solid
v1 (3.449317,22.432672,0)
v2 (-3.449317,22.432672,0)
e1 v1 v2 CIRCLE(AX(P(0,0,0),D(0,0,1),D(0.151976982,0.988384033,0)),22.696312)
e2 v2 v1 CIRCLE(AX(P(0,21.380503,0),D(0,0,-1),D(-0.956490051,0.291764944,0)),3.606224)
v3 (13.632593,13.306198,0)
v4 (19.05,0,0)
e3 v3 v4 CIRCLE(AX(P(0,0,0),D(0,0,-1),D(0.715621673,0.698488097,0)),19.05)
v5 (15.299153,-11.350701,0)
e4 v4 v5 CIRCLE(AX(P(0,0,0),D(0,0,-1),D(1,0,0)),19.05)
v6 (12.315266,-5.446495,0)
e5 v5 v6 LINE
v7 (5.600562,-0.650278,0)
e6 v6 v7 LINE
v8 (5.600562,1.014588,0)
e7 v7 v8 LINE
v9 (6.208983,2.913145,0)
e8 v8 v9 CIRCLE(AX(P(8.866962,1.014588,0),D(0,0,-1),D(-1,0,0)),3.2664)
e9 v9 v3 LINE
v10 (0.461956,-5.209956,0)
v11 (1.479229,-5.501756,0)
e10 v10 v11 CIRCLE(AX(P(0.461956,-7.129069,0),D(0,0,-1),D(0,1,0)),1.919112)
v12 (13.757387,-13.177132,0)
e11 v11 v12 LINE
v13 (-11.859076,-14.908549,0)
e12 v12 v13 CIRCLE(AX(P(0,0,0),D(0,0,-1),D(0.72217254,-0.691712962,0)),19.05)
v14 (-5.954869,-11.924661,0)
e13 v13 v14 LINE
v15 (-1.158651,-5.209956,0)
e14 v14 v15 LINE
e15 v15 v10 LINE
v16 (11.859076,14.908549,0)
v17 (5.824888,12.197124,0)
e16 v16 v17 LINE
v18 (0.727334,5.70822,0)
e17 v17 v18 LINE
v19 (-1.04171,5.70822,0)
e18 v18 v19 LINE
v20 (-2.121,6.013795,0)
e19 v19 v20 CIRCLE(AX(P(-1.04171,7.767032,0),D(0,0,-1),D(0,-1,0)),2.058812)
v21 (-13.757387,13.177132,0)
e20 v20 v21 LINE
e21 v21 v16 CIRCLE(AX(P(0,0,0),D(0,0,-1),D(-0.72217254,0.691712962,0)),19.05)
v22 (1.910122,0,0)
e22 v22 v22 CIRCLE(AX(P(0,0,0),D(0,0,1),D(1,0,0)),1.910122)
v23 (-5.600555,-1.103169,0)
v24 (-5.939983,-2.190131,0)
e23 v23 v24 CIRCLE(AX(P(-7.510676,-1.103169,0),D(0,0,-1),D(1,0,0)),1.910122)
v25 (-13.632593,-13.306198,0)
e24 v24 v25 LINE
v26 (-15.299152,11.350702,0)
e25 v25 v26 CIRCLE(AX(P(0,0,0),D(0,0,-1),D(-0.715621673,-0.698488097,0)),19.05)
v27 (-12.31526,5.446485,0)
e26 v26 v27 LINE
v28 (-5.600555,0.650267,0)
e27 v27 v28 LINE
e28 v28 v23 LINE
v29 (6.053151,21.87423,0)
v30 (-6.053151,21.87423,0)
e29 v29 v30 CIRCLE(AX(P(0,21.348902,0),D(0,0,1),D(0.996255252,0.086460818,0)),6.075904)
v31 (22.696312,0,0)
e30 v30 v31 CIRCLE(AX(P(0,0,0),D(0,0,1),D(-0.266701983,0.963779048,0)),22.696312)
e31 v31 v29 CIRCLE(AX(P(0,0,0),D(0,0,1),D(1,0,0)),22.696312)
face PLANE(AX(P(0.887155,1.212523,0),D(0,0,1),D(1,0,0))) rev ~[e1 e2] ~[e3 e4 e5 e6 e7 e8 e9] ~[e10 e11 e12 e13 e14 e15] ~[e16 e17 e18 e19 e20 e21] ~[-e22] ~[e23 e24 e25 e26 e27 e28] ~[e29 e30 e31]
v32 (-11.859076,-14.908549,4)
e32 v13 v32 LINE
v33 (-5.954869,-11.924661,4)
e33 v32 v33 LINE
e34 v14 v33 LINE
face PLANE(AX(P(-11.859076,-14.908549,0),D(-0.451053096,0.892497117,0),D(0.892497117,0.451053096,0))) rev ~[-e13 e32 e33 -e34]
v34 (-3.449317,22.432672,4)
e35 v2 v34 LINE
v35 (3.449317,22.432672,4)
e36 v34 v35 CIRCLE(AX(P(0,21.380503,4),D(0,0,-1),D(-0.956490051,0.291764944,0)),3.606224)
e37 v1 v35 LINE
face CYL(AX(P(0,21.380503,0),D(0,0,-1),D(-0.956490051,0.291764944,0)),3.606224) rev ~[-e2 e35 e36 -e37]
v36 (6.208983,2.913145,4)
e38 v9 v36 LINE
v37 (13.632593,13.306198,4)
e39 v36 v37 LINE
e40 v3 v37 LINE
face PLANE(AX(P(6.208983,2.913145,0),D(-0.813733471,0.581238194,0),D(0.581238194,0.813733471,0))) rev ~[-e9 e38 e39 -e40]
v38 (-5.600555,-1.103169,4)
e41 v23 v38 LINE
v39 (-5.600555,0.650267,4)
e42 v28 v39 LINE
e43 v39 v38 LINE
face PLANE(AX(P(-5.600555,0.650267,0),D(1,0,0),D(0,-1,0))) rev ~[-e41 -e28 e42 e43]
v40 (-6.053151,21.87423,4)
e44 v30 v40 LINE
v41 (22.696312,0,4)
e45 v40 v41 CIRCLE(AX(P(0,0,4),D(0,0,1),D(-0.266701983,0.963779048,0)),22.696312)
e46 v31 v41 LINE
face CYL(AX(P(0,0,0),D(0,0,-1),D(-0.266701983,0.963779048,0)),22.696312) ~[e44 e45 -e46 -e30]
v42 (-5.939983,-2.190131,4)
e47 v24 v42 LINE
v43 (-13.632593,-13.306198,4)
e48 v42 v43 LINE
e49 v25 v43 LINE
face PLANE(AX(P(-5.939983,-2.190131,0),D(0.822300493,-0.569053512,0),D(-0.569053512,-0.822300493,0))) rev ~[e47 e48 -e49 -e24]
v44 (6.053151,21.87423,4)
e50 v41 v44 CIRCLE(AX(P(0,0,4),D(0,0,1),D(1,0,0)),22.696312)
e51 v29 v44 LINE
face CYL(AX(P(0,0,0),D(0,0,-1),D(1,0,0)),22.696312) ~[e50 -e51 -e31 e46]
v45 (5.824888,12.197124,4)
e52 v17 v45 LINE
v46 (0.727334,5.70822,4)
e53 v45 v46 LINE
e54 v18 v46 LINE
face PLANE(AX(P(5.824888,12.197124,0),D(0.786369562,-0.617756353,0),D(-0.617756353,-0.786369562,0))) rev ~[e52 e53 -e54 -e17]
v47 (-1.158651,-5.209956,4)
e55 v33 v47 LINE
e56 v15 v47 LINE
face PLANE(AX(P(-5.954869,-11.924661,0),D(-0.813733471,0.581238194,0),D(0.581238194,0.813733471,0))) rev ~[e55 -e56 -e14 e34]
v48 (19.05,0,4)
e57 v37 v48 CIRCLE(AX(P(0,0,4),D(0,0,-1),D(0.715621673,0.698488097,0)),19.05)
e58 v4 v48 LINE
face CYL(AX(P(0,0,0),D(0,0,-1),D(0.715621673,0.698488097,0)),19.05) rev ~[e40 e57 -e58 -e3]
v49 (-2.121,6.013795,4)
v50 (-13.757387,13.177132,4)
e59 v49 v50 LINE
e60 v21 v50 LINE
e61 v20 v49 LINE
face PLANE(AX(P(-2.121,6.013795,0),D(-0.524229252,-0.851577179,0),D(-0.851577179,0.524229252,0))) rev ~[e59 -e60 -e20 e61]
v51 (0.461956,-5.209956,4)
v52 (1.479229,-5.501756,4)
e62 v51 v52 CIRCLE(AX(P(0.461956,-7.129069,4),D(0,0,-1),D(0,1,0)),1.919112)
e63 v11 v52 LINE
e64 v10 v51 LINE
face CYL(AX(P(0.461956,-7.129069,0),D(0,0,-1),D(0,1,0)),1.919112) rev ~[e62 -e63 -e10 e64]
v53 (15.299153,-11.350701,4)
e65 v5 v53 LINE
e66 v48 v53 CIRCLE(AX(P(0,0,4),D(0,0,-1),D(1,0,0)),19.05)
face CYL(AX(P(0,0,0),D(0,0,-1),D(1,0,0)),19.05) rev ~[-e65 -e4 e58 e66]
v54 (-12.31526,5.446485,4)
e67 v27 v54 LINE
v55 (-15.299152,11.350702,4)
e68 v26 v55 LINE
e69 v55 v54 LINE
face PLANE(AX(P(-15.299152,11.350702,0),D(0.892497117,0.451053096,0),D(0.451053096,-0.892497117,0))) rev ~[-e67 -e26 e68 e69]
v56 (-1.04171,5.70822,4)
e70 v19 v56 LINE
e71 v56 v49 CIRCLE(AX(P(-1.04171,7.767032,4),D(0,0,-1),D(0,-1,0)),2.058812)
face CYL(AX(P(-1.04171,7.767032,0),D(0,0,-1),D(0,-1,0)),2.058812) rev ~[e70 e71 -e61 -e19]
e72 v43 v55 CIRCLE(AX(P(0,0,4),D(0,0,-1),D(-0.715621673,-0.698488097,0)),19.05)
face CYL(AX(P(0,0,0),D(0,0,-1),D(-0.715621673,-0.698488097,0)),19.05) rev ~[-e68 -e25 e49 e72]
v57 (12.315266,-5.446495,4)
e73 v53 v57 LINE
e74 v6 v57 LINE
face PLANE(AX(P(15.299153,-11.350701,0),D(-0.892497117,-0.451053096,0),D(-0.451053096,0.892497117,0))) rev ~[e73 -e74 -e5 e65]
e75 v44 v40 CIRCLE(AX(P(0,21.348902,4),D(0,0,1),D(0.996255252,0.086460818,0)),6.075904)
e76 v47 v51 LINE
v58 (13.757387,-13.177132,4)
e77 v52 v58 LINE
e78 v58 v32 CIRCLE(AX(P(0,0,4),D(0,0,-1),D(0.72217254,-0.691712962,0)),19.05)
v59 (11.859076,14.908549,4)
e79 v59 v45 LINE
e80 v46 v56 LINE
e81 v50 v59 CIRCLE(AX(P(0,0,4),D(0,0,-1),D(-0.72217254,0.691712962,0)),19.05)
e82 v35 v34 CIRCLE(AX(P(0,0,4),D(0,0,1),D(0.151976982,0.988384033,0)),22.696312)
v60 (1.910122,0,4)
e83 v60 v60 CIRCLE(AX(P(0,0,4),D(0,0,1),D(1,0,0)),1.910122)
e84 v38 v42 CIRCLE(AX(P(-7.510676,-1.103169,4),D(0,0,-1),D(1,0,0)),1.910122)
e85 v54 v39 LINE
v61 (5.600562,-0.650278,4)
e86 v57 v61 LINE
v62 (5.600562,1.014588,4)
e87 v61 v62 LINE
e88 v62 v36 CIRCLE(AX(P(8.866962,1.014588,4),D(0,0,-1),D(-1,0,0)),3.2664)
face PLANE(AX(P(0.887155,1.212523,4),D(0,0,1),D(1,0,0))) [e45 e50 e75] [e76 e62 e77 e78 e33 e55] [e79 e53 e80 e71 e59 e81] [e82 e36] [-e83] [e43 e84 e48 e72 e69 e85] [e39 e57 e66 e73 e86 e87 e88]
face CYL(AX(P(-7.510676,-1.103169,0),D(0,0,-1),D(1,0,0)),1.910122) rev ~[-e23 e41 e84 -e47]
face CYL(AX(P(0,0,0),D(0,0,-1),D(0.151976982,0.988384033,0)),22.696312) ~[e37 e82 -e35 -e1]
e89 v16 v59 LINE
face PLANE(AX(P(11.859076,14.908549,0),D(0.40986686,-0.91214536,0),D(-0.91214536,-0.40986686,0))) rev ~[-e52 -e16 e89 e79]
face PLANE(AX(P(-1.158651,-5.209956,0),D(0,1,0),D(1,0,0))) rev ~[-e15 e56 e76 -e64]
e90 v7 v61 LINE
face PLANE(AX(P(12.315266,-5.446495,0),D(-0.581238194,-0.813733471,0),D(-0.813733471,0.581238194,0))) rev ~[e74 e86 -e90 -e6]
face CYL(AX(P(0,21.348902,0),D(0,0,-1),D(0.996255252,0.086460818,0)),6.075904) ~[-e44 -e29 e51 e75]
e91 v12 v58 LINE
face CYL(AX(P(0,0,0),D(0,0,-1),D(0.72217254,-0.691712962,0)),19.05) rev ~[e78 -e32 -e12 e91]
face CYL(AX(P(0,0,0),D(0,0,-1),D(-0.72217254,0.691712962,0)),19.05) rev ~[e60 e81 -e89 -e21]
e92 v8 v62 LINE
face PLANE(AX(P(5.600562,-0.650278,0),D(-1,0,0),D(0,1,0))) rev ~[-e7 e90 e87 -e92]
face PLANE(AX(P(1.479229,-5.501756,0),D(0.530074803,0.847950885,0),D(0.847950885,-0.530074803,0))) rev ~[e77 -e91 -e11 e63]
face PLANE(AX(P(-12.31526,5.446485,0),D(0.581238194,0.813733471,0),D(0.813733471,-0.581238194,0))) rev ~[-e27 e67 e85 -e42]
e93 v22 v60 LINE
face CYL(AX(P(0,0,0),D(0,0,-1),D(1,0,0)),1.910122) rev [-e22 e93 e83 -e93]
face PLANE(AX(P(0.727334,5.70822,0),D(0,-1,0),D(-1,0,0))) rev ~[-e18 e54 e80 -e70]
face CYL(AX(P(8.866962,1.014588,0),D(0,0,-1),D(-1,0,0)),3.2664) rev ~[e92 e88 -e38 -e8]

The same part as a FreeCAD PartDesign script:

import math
import FreeCAD as App
import Part
import Sketcher
from FreeCAD import Vector

doc = App.newDocument("Part")
body = doc.addObject("PartDesign::Body", "Body")

# Sketch on XY plane
sketch1 = body.newObject("Sketcher::SketchObject", "Sketch")
sketch1.AttachmentSupport = (doc.getObject("XY_Plane"), [""])
sketch1.MapMode = "FlatFace"
sketch1.addGeometry(Part.ArcOfCircle(Part.Circle(Vector(0, 0, 0), Vector(0, 0, 1), 22.7), math.radians(105), math.radians(360)), False)
sketch1.addGeometry(Part.ArcOfCircle(Part.Circle(Vector(0, 0, 0), Vector(0, 0, 1), 22.7), math.radians(0), math.radians(75)), False)
sketch1.addGeometry(Part.ArcOfCircle(Part.Circle(Vector(0, 21.3, 0), Vector(0, 0, 1), 6.1), math.radians(5), math.radians(175)), False)
sketch1.addGeometry(Part.ArcOfCircle(Part.Circle(Vector(0, 0, 0), Vector(0, 0, 1), 22.7), math.radians(81.26), math.radians(98.74)), False)
sketch1.addGeometry(Part.ArcOfCircle(Part.Circle(Vector(0, 21.4, 0), Vector(0, 0, 1), 3.6), math.radians(17), math.radians(163)), False)
sketch1.addGeometry(Part.ArcOfCircle(Part.Circle(Vector(0, 0, 0), Vector(0, 0, 1), 19.1), math.radians(143), math.radians(224)), False)
sketch1.addGeometry(Part.LineSegment(Vector(-15.3, 11.4, 0), Vector(-12.3, 5.4, 0)), False)
sketch1.addGeometry(Part.LineSegment(Vector(-12.3, 5.4, 0), Vector(-5.6, 0.7, 0)), False)
sketch1.addGeometry(Part.LineSegment(Vector(-5.6, 0.7, 0), Vector(-5.6, -1.1, 0)), False)
sketch1.addGeometry(Part.ArcOfCircle(Part.Circle(Vector(-7.5, -1.1, 0), Vector(0, 0, 1), 1.9), math.radians(-35), math.radians(0)), False)
sketch1.addGeometry(Part.LineSegment(Vector(-5.9, -2.2, 0), Vector(-13.6, -13.3, 0)), False)
sketch1.addGeometry(Part.ArcOfCircle(Part.Circle(Vector(0, 0, 0), Vector(0, 0, 1), 19.1), math.radians(-129), math.radians(-44)), False)
sketch1.addGeometry(Part.LineSegment(Vector(-11.9, -14.9, 0), Vector(-6, -11.9, 0)), False)
sketch1.addGeometry(Part.LineSegment(Vector(-6, -11.9, 0), Vector(-1.2, -5.2, 0)), False)
sketch1.addGeometry(Part.LineSegment(Vector(-1.2, -5.2, 0), Vector(0.5, -5.2, 0)), False)
sketch1.addGeometry(Part.ArcOfCircle(Part.Circle(Vector(0.5, -7.1, 0), Vector(0, 0, 1), 1.9), math.radians(58), math.radians(90)), False)
sketch1.addGeometry(Part.LineSegment(Vector(1.5, -5.5, 0), Vector(13.8, -13.2, 0)), False)
sketch1.addGeometry(Part.ArcOfCircle(Part.Circle(Vector(0, 0, 0), Vector(0, 0, 1), 19.1), math.radians(51), math.radians(136)), False)
sketch1.addGeometry(Part.LineSegment(Vector(11.9, 14.9, 0), Vector(5.8, 12.2, 0)), False)
sketch1.addGeometry(Part.LineSegment(Vector(5.8, 12.2, 0), Vector(0.7, 5.7, 0)), False)
sketch1.addGeometry(Part.LineSegment(Vector(0.7, 5.7, 0), Vector(-1, 5.7, 0)), False)
sketch1.addGeometry(Part.ArcOfCircle(Part.Circle(Vector(-1, 7.8, 0), Vector(0, 0, 1), 2.1), math.radians(-122), math.radians(-90)), False)
sketch1.addGeometry(Part.LineSegment(Vector(-2.1, 6, 0), Vector(-13.8, 13.2, 0)), False)
sketch1.addGeometry(Part.Circle(Vector(0, 0, 0), Vector(0, 0, 1), 1.9), False)
sketch1.addGeometry(Part.ArcOfCircle(Part.Circle(Vector(0, 0, 0), Vector(0, 0, 1), 19.1), math.radians(-37), math.radians(0)), False)
sketch1.addGeometry(Part.LineSegment(Vector(15.3, -11.4, 0), Vector(12.3, -5.4, 0)), False)
sketch1.addGeometry(Part.LineSegment(Vector(12.3, -5.4, 0), Vector(5.6, -0.7, 0)), False)
sketch1.addGeometry(Part.LineSegment(Vector(5.6, -0.7, 0), Vector(5.6, 1, 0)), False)
sketch1.addGeometry(Part.ArcOfCircle(Part.Circle(Vector(8.9, 1, 0), Vector(0, 0, 1), 3.3), math.radians(144), math.radians(180)), False)
sketch1.addGeometry(Part.LineSegment(Vector(6.2, 2.9, 0), Vector(13.6, 13.3, 0)), False)
sketch1.addGeometry(Part.ArcOfCircle(Part.Circle(Vector(0, 0, 0), Vector(0, 0, 1), 19.1), math.radians(0), math.radians(44)), False)
sketch1.addConstraint(Sketcher.Constraint("Tangent", 0, 2, 1, 1))
sketch1.addConstraint(Sketcher.Constraint("Coincident", 1, 2, 2, 1))
sketch1.addConstraint(Sketcher.Constraint("Coincident", 2, 2, 0, 1))
sketch1.addConstraint(Sketcher.Constraint("Coincident", 3, 1, 4, 1))
sketch1.addConstraint(Sketcher.Constraint("Coincident", 4, 2, 3, 2))
sketch1.addConstraint(Sketcher.Constraint("Coincident", 5, 1, 6, 1))
sketch1.addConstraint(Sketcher.Constraint("Coincident", 6, 2, 7, 1))
sketch1.addConstraint(Sketcher.Constraint("Coincident", 7, 2, 8, 1))
sketch1.addConstraint(Sketcher.Constraint("Tangent", 8, 2, 9, 2))
sketch1.addConstraint(Sketcher.Constraint("Tangent", 9, 1, 10, 1))
sketch1.addConstraint(Sketcher.Constraint("Coincident", 10, 2, 5, 2))
sketch1.addConstraint(Sketcher.Constraint("Coincident", 11, 1, 12, 1))
sketch1.addConstraint(Sketcher.Constraint("Coincident", 12, 2, 13, 1))
sketch1.addConstraint(Sketcher.Constraint("Coincident", 13, 2, 14, 1))
sketch1.addConstraint(Sketcher.Constraint("Tangent", 14, 2, 15, 2))
sketch1.addConstraint(Sketcher.Constraint("Tangent", 15, 1, 16, 1))
sketch1.addConstraint(Sketcher.Constraint("Coincident", 16, 2, 11, 2))
sketch1.addConstraint(Sketcher.Constraint("Coincident", 17, 1, 18, 1))
sketch1.addConstraint(Sketcher.Constraint("Coincident", 18, 2, 19, 1))
sketch1.addConstraint(Sketcher.Constraint("Coincident", 19, 2, 20, 1))
sketch1.addConstraint(Sketcher.Constraint("Tangent", 20, 2, 21, 2))
sketch1.addConstraint(Sketcher.Constraint("Tangent", 21, 1, 22, 1))
sketch1.addConstraint(Sketcher.Constraint("Coincident", 22, 2, 17, 2))
sketch1.addConstraint(Sketcher.Constraint("Coincident", 24, 1, 25, 1))
sketch1.addConstraint(Sketcher.Constraint("Coincident", 25, 2, 26, 1))
sketch1.addConstraint(Sketcher.Constraint("Coincident", 26, 2, 27, 1))
sketch1.addConstraint(Sketcher.Constraint("Tangent", 27, 2, 28, 2))
sketch1.addConstraint(Sketcher.Constraint("Tangent", 28, 1, 29, 1))
sketch1.addConstraint(Sketcher.Constraint("Coincident", 29, 2, 30, 2))
sketch1.addConstraint(Sketcher.Constraint("Tangent", 30, 1, 24, 2))
sketch1.addConstraint(Sketcher.Constraint("Vertical", 8))
sketch1.addConstraint(Sketcher.Constraint("Horizontal", 14))
sketch1.addConstraint(Sketcher.Constraint("Horizontal", 20))
sketch1.addConstraint(Sketcher.Constraint("Vertical", 27))
sketch1.addConstraint(Sketcher.Constraint("Coincident", 0, 3, -1, 1))
sketch1.addConstraint(Sketcher.Constraint("Coincident", 3, 3, -1, 1))
sketch1.addConstraint(Sketcher.Constraint("Coincident", 5, 3, -1, 1))
sketch1.addConstraint(Sketcher.Constraint("Coincident", 11, 3, -1, 1))
sketch1.addConstraint(Sketcher.Constraint("Coincident", 17, 3, -1, 1))
sketch1.addConstraint(Sketcher.Constraint("Coincident", 23, 3, -1, 1))
sketch1.addConstraint(Sketcher.Constraint("Coincident", 24, 3, -1, 1))
sketch1.addConstraint(Sketcher.Constraint("Equal", 0, 1))
sketch1.addConstraint(Sketcher.Constraint("Equal", 1, 3))
sketch1.addConstraint(Sketcher.Constraint("Equal", 5, 11))
sketch1.addConstraint(Sketcher.Constraint("Equal", 11, 17))
sketch1.addConstraint(Sketcher.Constraint("Equal", 9, 23))
sketch1.addConstraint(Sketcher.Constraint("Equal", 17, 24))
sketch1.addConstraint(Sketcher.Constraint("Equal", 24, 30))
sketch1.addConstraint(Sketcher.Constraint("PointOnObject", 2, 3, -2))
sketch1.addConstraint(Sketcher.Constraint("PointOnObject", 4, 3, -2))
sketch1.addConstraint(Sketcher.Constraint("PointOnObject", 0, 2, -1))
sketch1.addConstraint(Sketcher.Constraint("PointOnObject", 30, 1, -1))
sketch1.addConstraint(Sketcher.Constraint("Perpendicular", 6, 12))
sketch1.addConstraint(Sketcher.Constraint("Perpendicular", 7, 13))
sketch1.addConstraint(Sketcher.Constraint("Perpendicular", 12, 25))
sketch1.addConstraint(Sketcher.Constraint("Perpendicular", 13, 26))
sketch1.addConstraint(Sketcher.Constraint("Perpendicular", 26, 29))
sketch1.addConstraint(Sketcher.Constraint("Equal", 7, 13))
sketch1.addConstraint(Sketcher.Constraint("Equal", 12, 18))
sketch1.addConstraint(Sketcher.Constraint("Equal", 13, 19))
sketch1.addConstraint(Sketcher.Constraint("Equal", 18, 25))
sketch1.addConstraint(Sketcher.Constraint("Equal", 19, 26))
sketch1.addConstraint(Sketcher.Constraint("Radius", 5, 19.05))
sketch1.addConstraint(Sketcher.Constraint("Radius", 28, 3.2664))
sketch1.addConstraint(Sketcher.Constraint("Radius", 0, 22.696312))
sketch1.addConstraint(Sketcher.Constraint("Radius", 9, 1.910122))
sketch1.addConstraint(Sketcher.Constraint("DistanceX", 21, 1, -1, 1, 2.121))
sketch1.addConstraint(Sketcher.Constraint("Radius", 2, 6.075904))
sketch1.addConstraint(Sketcher.Constraint("Radius", 4, 3.606224))
sketch1.addConstraint(Sketcher.Constraint("Radius", 15, 1.919112))
sketch1.addConstraint(Sketcher.Constraint("Radius", 21, 2.058812))
sketch1.addConstraint(Sketcher.Constraint("DistanceX", 5, 1, 2, 2, 9.246001))
sketch1.addConstraint(Sketcher.Constraint("Distance", 16, 14.479798))
sketch1.addConstraint(Sketcher.Constraint("DistanceY", 10, 2, -1, 1, 13.306198))
sketch1.addConstraint(Sketcher.Constraint("DistanceY", 24, 1, -1, 1, 11.350701))
sketch1.addConstraint(Sketcher.Constraint("DistanceY", -1, 1, 29, 2, 13.306198))
sketch1.addConstraint(Sketcher.Constraint("DistanceY", 2, 3, 4, 3, 0.0316))
sketch1.addConstraint(Sketcher.Constraint("DistanceY", 5, 1, 2, 3, 9.9982))
sketch1.addConstraint(Sketcher.Constraint("DistanceX", 11, 1, 9, 3, 4.348399))
sketch1.addConstraint(Sketcher.Constraint("DistanceY", 15, 1, 14, 2, 0.291799))
sketch1.addConstraint(Sketcher.Constraint("DistanceX", 21, 3, 18, 2, 6.866598))
sketch1.addConstraint(Sketcher.Constraint("DistanceY", 21, 3, 22, 2, 5.4101))
sketch1.addConstraint(Sketcher.Constraint("Distance", 6, 6.615391))
sketch1.addConstraint(Sketcher.Constraint("Distance", 12, 6.615379))
sketch1.addConstraint(Sketcher.Constraint("Distance", 29, 12.772061))
sketch1.addConstraint(Sketcher.Constraint("DistanceX", 14, 1, 14, 2, 1.620607))
sketch1.addConstraint(Sketcher.Constraint("DistanceX", 20, 2, 20, 1, 1.769044))
sketch1.addConstraint(Sketcher.Constraint("DistanceY", 8, 2, 8, 1, 1.753436))
sketch1.addConstraint(Sketcher.Constraint("DistanceY", 27, 1, 27, 2, 1.664866))
sketch1.addConstraint(Sketcher.Constraint("DistanceX", 21, 3, -1, 1, 1.04171))
pad1 = body.newObject("PartDesign::Pad", "Pad")
pad1.Profile = sketch1
pad1.Length = 4

doc.recompute()
